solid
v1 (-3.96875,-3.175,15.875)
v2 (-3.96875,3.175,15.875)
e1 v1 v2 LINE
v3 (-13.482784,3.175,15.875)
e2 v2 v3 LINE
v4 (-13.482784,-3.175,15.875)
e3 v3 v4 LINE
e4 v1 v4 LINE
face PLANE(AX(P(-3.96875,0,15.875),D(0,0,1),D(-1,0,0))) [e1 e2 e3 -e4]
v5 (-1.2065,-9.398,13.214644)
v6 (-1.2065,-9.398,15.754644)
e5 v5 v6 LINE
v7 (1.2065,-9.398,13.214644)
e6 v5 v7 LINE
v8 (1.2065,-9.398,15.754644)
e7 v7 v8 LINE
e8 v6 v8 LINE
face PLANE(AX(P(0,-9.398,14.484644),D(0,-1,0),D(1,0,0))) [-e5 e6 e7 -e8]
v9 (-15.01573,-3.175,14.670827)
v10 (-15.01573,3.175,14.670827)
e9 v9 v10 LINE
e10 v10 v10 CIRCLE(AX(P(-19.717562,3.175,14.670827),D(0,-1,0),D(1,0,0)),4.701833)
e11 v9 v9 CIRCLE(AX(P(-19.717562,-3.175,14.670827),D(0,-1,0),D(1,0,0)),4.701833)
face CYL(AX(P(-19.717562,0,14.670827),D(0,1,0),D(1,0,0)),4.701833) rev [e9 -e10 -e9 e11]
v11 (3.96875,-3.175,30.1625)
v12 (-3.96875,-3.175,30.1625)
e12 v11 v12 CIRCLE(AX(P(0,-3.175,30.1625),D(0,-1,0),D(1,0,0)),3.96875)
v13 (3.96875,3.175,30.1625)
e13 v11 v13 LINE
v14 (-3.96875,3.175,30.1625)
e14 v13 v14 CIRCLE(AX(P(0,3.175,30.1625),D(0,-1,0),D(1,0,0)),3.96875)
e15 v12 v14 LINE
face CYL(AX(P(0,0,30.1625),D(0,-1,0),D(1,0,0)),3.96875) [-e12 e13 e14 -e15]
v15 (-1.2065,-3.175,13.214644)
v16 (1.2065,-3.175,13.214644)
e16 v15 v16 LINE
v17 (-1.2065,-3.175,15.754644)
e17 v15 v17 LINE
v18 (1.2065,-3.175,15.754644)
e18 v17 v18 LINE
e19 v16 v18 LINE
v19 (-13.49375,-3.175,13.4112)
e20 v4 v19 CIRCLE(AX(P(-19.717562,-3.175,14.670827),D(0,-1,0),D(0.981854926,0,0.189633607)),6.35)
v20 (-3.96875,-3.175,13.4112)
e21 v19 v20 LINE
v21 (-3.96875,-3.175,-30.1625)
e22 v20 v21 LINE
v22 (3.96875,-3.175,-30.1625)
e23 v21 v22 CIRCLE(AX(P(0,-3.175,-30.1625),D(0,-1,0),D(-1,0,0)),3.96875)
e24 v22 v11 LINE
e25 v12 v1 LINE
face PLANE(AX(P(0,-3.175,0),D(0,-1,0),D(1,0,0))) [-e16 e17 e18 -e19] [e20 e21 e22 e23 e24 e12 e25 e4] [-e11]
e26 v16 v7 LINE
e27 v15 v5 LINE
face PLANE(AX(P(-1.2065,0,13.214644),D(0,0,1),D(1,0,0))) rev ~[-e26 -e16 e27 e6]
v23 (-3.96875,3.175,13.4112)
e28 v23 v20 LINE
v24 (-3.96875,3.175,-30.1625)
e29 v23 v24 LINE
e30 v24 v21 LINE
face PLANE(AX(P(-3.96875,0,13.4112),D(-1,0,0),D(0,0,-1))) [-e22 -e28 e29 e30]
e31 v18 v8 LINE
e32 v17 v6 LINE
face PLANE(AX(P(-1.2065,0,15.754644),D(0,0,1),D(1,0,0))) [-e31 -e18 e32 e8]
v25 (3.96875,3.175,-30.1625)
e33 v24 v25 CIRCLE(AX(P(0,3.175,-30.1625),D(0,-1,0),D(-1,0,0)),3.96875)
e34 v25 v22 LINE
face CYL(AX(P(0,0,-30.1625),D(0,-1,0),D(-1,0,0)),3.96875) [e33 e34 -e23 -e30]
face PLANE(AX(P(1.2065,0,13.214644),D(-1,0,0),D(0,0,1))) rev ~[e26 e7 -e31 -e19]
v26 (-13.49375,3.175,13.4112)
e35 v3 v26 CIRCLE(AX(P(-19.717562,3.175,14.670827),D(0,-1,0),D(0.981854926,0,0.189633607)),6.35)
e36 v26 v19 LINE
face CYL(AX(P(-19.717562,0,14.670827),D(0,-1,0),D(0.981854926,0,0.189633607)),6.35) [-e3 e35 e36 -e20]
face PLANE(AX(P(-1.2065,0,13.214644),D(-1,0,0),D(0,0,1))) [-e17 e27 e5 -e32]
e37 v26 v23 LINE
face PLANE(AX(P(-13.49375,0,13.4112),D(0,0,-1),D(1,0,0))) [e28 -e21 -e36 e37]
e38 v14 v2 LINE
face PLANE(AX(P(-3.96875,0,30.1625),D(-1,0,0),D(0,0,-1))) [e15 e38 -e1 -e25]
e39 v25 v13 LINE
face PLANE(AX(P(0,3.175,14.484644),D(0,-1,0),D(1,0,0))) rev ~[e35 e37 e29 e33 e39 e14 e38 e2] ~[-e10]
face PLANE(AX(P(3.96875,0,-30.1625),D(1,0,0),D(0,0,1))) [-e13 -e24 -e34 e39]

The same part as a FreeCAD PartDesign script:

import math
import FreeCAD as App
import Part
import Sketcher

V = App.Vector
Q = App.Units.Quantity


def add_polygon(sketch, points):
    """Adds a closed chain of lines whose ends are joined by coincident constraints."""
    first, n = sketch.GeometryCount, len(points)
    for a, b in zip(points, points[1:] + points[:1]):
        sketch.addGeometry(Part.LineSegment(App.Vector(*a, 0), App.Vector(*b, 0)), False)
    for i in range(n):
        sketch.addConstraint(Sketcher.Constraint("Coincident", first + i, 2, first + (i + 1) % n, 1))

doc = App.newDocument("Part")
body = doc.addObject("PartDesign::Body", "Body")

sketch1 = body.newObject("Sketcher::SketchObject", "Sketch")
sketch1.AttachmentSupport = (doc.getObject("XZ_Plane"), [""])
sketch1.MapMode = "FlatFace"
sketch1.addGeometry(Part.LineSegment(V(-4, 15.9, 0), V(-13.5, 15.9, 0)), False)
sketch1.addGeometry(Part.ArcOfCircle(Part.Circle(V(-19.7, 14.7, 0), V(0, 0, 1), 6.3), math.radians(11), math.radians(349)), False)
sketch1.addGeometry(Part.LineSegment(V(-13.5, 13.4, 0), V(-4, 13.4, 0)), False)
sketch1.addGeometry(Part.LineSegment(V(-4, 13.4, 0), V(-4, -30.2, 0)), False)
sketch1.addGeometry(Part.ArcOfCircle(Part.Circle(V(0, -30.2, 0), V(0, 0, 1), 4), math.radians(180), math.radians(360)), False)
sketch1.addGeometry(Part.LineSegment(V(4, -30.2, 0), V(4, 30.2, 0)), False)
sketch1.addGeometry(Part.ArcOfCircle(Part.Circle(V(0, 30.2, 0), V(0, 0, 1), 4), math.radians(0), math.radians(180)), False)
sketch1.addGeometry(Part.LineSegment(V(-4, 30.2, 0), V(-4, 15.9, 0)), False)
sketch1.addGeometry(Part.Circle(V(-19.7, 14.7, 0), V(0, 0, 1), 4.7), False)
add_polygon(sketch1, [(-1.2, 15.8), (1.2, 15.8), (1.2, 13.2), (-1.2, 13.2)])
sketch1.addConstraint(Sketcher.Constraint("Coincident", 0, 2, 1, 1))
sketch1.addConstraint(Sketcher.Constraint("Coincident", 1, 2, 2, 1))
sketch1.addConstraint(Sketcher.Constraint("Coincident", 2, 2, 3, 1))
sketch1.addConstraint(Sketcher.Constraint("Tangent", 3, 2, 4, 1))
sketch1.addConstraint(Sketcher.Constraint("Tangent", 4, 2, 5, 1))
sketch1.addConstraint(Sketcher.Constraint("Tangent", 5, 2, 6, 1))
sketch1.addConstraint(Sketcher.Constraint("Tangent", 6, 2, 7, 1))
sketch1.addConstraint(Sketcher.Constraint("Coincident", 7, 2, 0, 1))
sketch1.addConstraint(Sketcher.Constraint("Horizontal", 0))
sketch1.addConstraint(Sketcher.Constraint("Horizontal", 2))
sketch1.addConstraint(Sketcher.Constraint("Vertical", 3))
sketch1.addConstraint(Sketcher.Constraint("Vertical", 5))
sketch1.addConstraint(Sketcher.Constraint("Vertical", 7))
sketch1.addConstraint(Sketcher.Constraint("Horizontal", 9))
sketch1.addConstraint(Sketcher.Constraint("Vertical", 10))
sketch1.addConstraint(Sketcher.Constraint("Horizontal", 11))
sketch1.addConstraint(Sketcher.Constraint("Vertical", 12))
sketch1.addConstraint(Sketcher.Constraint("Coincident", 8, 3, 1, 3))
sketch1.addConstraint(Sketcher.Constraint("Equal", 4, 6))
sketch1.addConstraint(Sketcher.Constraint("Symmetric", 4, 3, 6, 3, -1, 1))
sketch1.addConstraint(Sketcher.Constraint("Radius", 1, Q("0.25 in")))
sketch1.addConstraint(Sketcher.Constraint("DistanceY", 10, 2, 10, 1, Q("0.1 in")))
sketch1.addConstraint(Sketcher.Constraint("Radius", 4, Q("0.15625 in")))
sketch1.addConstraint(Sketcher.Constraint("DistanceX", 2, 1, 2, 2, Q("0.375 in")))
sketch1.addConstraint(Sketcher.Constraint("DistanceX", 9, 1, 9, 2, Q("0.095 in")))
sketch1.addConstraint(Sketcher.Constraint("DistanceY", 5, 1, 5, 2, Q("2.375 in")))
sketch1.addConstraint(Sketcher.Constraint("DistanceY", 7, 2, 7, 1, Q("0.5625 in")))
sketch1.addConstraint(Sketcher.Constraint("DistanceY", 3, 2, 3, 1, Q("1.7155 in")))
sketch1.addConstraint(Sketcher.Constraint("Diameter", 8, Q("9.403665 mm")))
sketch1.addConstraint(Sketcher.Constraint("DistanceX", -1, 1, 9, 2, Q("0.0475 in")))
sketch1.addConstraint(Sketcher.Constraint("DistanceX", 0, 2, 0, 1, Q("9.514034 mm")))
sketch1.addConstraint(Sketcher.Constraint("DistanceY", -1, 1, 9, 2, Q("15.754644 mm")))
pad1 = body.newObject("PartDesign::Pad", "Pad")
pad1.Profile = sketch1
pad1.Length = Q("0.25 in")
pad1.Midplane = True

sketch2 = body.newObject("Sketcher::SketchObject", "Sketch001")
sketch2.AttachmentSupport = (doc.getObject("XZ_Plane"), [""])
sketch2.MapMode = "FlatFace"
add_polygon(sketch2, [(-1.2, 15.8), (-1.2, 13.2), (1.2, 13.2), (1.2, 15.8)])
sketch2.addConstraint(Sketcher.Constraint("Vertical", 0))
sketch2.addConstraint(Sketcher.Constraint("Horizontal", 1))
sketch2.addConstraint(Sketcher.Constraint("Vertical", 2))
sketch2.addConstraint(Sketcher.Constraint("Horizontal", 3))
sketch2.addConstraint(Sketcher.Constraint("DistanceY", 0, 2, 0, 1, Q("0.1 in")))
sketch2.addConstraint(Sketcher.Constraint("DistanceX", 1, 1, 1, 2, Q("0.095 in")))
sketch2.addConstraint(Sketcher.Constraint("DistanceX", 0, 2, -1, 1, Q("0.0475 in")))
sketch2.addConstraint(Sketcher.Constraint("DistanceY", -1, 1, 0, 2, Q("13.214644 mm")))
pad2 = body.newObject("PartDesign::Pad", "Pad001")
pad2.Profile = sketch2
pad2.Length = Q("0.37 in")

sketch3 = body.newObject("Sketcher::SketchObject", "Sketch002")
sketch3.AttachmentSupport = (doc.getObject("XZ_Plane"), [""])
sketch3.MapMode = "FlatFace"
add_polygon(sketch3, [(-1.2, 15.8), (-1.2, 13.2), (1.2, 13.2), (1.2, 15.8)])
sketch3.addConstraint(Sketcher.Constraint("Vertical", 0))
sketch3.addConstraint(Sketcher.Constraint("Horizontal", 1))
sketch3.addConstraint(Sketcher.Constraint("Vertical", 2))
sketch3.addConstraint(Sketcher.Constraint("Horizontal", 3))
sketch3.addConstraint(Sketcher.Constraint("DistanceY", 0, 2, 0, 1, Q("0.1 in")))
sketch3.addConstraint(Sketcher.Constraint("DistanceX", 1, 1, 1, 2, Q("0.095 in")))
sketch3.addConstraint(Sketcher.Constraint("DistanceX", 0, 2, -1, 1, Q("0.0475 in")))
sketch3.addConstraint(Sketcher.Constraint("DistanceY", -1, 1, 0, 2, Q("13.214644 mm")))
pad3 = body.newObject("PartDesign::Pad", "Pad002")
pad3.Profile = sketch3
pad3.Length = Q("0.125 in")
pad3.Reversed = True

doc.recompute()
